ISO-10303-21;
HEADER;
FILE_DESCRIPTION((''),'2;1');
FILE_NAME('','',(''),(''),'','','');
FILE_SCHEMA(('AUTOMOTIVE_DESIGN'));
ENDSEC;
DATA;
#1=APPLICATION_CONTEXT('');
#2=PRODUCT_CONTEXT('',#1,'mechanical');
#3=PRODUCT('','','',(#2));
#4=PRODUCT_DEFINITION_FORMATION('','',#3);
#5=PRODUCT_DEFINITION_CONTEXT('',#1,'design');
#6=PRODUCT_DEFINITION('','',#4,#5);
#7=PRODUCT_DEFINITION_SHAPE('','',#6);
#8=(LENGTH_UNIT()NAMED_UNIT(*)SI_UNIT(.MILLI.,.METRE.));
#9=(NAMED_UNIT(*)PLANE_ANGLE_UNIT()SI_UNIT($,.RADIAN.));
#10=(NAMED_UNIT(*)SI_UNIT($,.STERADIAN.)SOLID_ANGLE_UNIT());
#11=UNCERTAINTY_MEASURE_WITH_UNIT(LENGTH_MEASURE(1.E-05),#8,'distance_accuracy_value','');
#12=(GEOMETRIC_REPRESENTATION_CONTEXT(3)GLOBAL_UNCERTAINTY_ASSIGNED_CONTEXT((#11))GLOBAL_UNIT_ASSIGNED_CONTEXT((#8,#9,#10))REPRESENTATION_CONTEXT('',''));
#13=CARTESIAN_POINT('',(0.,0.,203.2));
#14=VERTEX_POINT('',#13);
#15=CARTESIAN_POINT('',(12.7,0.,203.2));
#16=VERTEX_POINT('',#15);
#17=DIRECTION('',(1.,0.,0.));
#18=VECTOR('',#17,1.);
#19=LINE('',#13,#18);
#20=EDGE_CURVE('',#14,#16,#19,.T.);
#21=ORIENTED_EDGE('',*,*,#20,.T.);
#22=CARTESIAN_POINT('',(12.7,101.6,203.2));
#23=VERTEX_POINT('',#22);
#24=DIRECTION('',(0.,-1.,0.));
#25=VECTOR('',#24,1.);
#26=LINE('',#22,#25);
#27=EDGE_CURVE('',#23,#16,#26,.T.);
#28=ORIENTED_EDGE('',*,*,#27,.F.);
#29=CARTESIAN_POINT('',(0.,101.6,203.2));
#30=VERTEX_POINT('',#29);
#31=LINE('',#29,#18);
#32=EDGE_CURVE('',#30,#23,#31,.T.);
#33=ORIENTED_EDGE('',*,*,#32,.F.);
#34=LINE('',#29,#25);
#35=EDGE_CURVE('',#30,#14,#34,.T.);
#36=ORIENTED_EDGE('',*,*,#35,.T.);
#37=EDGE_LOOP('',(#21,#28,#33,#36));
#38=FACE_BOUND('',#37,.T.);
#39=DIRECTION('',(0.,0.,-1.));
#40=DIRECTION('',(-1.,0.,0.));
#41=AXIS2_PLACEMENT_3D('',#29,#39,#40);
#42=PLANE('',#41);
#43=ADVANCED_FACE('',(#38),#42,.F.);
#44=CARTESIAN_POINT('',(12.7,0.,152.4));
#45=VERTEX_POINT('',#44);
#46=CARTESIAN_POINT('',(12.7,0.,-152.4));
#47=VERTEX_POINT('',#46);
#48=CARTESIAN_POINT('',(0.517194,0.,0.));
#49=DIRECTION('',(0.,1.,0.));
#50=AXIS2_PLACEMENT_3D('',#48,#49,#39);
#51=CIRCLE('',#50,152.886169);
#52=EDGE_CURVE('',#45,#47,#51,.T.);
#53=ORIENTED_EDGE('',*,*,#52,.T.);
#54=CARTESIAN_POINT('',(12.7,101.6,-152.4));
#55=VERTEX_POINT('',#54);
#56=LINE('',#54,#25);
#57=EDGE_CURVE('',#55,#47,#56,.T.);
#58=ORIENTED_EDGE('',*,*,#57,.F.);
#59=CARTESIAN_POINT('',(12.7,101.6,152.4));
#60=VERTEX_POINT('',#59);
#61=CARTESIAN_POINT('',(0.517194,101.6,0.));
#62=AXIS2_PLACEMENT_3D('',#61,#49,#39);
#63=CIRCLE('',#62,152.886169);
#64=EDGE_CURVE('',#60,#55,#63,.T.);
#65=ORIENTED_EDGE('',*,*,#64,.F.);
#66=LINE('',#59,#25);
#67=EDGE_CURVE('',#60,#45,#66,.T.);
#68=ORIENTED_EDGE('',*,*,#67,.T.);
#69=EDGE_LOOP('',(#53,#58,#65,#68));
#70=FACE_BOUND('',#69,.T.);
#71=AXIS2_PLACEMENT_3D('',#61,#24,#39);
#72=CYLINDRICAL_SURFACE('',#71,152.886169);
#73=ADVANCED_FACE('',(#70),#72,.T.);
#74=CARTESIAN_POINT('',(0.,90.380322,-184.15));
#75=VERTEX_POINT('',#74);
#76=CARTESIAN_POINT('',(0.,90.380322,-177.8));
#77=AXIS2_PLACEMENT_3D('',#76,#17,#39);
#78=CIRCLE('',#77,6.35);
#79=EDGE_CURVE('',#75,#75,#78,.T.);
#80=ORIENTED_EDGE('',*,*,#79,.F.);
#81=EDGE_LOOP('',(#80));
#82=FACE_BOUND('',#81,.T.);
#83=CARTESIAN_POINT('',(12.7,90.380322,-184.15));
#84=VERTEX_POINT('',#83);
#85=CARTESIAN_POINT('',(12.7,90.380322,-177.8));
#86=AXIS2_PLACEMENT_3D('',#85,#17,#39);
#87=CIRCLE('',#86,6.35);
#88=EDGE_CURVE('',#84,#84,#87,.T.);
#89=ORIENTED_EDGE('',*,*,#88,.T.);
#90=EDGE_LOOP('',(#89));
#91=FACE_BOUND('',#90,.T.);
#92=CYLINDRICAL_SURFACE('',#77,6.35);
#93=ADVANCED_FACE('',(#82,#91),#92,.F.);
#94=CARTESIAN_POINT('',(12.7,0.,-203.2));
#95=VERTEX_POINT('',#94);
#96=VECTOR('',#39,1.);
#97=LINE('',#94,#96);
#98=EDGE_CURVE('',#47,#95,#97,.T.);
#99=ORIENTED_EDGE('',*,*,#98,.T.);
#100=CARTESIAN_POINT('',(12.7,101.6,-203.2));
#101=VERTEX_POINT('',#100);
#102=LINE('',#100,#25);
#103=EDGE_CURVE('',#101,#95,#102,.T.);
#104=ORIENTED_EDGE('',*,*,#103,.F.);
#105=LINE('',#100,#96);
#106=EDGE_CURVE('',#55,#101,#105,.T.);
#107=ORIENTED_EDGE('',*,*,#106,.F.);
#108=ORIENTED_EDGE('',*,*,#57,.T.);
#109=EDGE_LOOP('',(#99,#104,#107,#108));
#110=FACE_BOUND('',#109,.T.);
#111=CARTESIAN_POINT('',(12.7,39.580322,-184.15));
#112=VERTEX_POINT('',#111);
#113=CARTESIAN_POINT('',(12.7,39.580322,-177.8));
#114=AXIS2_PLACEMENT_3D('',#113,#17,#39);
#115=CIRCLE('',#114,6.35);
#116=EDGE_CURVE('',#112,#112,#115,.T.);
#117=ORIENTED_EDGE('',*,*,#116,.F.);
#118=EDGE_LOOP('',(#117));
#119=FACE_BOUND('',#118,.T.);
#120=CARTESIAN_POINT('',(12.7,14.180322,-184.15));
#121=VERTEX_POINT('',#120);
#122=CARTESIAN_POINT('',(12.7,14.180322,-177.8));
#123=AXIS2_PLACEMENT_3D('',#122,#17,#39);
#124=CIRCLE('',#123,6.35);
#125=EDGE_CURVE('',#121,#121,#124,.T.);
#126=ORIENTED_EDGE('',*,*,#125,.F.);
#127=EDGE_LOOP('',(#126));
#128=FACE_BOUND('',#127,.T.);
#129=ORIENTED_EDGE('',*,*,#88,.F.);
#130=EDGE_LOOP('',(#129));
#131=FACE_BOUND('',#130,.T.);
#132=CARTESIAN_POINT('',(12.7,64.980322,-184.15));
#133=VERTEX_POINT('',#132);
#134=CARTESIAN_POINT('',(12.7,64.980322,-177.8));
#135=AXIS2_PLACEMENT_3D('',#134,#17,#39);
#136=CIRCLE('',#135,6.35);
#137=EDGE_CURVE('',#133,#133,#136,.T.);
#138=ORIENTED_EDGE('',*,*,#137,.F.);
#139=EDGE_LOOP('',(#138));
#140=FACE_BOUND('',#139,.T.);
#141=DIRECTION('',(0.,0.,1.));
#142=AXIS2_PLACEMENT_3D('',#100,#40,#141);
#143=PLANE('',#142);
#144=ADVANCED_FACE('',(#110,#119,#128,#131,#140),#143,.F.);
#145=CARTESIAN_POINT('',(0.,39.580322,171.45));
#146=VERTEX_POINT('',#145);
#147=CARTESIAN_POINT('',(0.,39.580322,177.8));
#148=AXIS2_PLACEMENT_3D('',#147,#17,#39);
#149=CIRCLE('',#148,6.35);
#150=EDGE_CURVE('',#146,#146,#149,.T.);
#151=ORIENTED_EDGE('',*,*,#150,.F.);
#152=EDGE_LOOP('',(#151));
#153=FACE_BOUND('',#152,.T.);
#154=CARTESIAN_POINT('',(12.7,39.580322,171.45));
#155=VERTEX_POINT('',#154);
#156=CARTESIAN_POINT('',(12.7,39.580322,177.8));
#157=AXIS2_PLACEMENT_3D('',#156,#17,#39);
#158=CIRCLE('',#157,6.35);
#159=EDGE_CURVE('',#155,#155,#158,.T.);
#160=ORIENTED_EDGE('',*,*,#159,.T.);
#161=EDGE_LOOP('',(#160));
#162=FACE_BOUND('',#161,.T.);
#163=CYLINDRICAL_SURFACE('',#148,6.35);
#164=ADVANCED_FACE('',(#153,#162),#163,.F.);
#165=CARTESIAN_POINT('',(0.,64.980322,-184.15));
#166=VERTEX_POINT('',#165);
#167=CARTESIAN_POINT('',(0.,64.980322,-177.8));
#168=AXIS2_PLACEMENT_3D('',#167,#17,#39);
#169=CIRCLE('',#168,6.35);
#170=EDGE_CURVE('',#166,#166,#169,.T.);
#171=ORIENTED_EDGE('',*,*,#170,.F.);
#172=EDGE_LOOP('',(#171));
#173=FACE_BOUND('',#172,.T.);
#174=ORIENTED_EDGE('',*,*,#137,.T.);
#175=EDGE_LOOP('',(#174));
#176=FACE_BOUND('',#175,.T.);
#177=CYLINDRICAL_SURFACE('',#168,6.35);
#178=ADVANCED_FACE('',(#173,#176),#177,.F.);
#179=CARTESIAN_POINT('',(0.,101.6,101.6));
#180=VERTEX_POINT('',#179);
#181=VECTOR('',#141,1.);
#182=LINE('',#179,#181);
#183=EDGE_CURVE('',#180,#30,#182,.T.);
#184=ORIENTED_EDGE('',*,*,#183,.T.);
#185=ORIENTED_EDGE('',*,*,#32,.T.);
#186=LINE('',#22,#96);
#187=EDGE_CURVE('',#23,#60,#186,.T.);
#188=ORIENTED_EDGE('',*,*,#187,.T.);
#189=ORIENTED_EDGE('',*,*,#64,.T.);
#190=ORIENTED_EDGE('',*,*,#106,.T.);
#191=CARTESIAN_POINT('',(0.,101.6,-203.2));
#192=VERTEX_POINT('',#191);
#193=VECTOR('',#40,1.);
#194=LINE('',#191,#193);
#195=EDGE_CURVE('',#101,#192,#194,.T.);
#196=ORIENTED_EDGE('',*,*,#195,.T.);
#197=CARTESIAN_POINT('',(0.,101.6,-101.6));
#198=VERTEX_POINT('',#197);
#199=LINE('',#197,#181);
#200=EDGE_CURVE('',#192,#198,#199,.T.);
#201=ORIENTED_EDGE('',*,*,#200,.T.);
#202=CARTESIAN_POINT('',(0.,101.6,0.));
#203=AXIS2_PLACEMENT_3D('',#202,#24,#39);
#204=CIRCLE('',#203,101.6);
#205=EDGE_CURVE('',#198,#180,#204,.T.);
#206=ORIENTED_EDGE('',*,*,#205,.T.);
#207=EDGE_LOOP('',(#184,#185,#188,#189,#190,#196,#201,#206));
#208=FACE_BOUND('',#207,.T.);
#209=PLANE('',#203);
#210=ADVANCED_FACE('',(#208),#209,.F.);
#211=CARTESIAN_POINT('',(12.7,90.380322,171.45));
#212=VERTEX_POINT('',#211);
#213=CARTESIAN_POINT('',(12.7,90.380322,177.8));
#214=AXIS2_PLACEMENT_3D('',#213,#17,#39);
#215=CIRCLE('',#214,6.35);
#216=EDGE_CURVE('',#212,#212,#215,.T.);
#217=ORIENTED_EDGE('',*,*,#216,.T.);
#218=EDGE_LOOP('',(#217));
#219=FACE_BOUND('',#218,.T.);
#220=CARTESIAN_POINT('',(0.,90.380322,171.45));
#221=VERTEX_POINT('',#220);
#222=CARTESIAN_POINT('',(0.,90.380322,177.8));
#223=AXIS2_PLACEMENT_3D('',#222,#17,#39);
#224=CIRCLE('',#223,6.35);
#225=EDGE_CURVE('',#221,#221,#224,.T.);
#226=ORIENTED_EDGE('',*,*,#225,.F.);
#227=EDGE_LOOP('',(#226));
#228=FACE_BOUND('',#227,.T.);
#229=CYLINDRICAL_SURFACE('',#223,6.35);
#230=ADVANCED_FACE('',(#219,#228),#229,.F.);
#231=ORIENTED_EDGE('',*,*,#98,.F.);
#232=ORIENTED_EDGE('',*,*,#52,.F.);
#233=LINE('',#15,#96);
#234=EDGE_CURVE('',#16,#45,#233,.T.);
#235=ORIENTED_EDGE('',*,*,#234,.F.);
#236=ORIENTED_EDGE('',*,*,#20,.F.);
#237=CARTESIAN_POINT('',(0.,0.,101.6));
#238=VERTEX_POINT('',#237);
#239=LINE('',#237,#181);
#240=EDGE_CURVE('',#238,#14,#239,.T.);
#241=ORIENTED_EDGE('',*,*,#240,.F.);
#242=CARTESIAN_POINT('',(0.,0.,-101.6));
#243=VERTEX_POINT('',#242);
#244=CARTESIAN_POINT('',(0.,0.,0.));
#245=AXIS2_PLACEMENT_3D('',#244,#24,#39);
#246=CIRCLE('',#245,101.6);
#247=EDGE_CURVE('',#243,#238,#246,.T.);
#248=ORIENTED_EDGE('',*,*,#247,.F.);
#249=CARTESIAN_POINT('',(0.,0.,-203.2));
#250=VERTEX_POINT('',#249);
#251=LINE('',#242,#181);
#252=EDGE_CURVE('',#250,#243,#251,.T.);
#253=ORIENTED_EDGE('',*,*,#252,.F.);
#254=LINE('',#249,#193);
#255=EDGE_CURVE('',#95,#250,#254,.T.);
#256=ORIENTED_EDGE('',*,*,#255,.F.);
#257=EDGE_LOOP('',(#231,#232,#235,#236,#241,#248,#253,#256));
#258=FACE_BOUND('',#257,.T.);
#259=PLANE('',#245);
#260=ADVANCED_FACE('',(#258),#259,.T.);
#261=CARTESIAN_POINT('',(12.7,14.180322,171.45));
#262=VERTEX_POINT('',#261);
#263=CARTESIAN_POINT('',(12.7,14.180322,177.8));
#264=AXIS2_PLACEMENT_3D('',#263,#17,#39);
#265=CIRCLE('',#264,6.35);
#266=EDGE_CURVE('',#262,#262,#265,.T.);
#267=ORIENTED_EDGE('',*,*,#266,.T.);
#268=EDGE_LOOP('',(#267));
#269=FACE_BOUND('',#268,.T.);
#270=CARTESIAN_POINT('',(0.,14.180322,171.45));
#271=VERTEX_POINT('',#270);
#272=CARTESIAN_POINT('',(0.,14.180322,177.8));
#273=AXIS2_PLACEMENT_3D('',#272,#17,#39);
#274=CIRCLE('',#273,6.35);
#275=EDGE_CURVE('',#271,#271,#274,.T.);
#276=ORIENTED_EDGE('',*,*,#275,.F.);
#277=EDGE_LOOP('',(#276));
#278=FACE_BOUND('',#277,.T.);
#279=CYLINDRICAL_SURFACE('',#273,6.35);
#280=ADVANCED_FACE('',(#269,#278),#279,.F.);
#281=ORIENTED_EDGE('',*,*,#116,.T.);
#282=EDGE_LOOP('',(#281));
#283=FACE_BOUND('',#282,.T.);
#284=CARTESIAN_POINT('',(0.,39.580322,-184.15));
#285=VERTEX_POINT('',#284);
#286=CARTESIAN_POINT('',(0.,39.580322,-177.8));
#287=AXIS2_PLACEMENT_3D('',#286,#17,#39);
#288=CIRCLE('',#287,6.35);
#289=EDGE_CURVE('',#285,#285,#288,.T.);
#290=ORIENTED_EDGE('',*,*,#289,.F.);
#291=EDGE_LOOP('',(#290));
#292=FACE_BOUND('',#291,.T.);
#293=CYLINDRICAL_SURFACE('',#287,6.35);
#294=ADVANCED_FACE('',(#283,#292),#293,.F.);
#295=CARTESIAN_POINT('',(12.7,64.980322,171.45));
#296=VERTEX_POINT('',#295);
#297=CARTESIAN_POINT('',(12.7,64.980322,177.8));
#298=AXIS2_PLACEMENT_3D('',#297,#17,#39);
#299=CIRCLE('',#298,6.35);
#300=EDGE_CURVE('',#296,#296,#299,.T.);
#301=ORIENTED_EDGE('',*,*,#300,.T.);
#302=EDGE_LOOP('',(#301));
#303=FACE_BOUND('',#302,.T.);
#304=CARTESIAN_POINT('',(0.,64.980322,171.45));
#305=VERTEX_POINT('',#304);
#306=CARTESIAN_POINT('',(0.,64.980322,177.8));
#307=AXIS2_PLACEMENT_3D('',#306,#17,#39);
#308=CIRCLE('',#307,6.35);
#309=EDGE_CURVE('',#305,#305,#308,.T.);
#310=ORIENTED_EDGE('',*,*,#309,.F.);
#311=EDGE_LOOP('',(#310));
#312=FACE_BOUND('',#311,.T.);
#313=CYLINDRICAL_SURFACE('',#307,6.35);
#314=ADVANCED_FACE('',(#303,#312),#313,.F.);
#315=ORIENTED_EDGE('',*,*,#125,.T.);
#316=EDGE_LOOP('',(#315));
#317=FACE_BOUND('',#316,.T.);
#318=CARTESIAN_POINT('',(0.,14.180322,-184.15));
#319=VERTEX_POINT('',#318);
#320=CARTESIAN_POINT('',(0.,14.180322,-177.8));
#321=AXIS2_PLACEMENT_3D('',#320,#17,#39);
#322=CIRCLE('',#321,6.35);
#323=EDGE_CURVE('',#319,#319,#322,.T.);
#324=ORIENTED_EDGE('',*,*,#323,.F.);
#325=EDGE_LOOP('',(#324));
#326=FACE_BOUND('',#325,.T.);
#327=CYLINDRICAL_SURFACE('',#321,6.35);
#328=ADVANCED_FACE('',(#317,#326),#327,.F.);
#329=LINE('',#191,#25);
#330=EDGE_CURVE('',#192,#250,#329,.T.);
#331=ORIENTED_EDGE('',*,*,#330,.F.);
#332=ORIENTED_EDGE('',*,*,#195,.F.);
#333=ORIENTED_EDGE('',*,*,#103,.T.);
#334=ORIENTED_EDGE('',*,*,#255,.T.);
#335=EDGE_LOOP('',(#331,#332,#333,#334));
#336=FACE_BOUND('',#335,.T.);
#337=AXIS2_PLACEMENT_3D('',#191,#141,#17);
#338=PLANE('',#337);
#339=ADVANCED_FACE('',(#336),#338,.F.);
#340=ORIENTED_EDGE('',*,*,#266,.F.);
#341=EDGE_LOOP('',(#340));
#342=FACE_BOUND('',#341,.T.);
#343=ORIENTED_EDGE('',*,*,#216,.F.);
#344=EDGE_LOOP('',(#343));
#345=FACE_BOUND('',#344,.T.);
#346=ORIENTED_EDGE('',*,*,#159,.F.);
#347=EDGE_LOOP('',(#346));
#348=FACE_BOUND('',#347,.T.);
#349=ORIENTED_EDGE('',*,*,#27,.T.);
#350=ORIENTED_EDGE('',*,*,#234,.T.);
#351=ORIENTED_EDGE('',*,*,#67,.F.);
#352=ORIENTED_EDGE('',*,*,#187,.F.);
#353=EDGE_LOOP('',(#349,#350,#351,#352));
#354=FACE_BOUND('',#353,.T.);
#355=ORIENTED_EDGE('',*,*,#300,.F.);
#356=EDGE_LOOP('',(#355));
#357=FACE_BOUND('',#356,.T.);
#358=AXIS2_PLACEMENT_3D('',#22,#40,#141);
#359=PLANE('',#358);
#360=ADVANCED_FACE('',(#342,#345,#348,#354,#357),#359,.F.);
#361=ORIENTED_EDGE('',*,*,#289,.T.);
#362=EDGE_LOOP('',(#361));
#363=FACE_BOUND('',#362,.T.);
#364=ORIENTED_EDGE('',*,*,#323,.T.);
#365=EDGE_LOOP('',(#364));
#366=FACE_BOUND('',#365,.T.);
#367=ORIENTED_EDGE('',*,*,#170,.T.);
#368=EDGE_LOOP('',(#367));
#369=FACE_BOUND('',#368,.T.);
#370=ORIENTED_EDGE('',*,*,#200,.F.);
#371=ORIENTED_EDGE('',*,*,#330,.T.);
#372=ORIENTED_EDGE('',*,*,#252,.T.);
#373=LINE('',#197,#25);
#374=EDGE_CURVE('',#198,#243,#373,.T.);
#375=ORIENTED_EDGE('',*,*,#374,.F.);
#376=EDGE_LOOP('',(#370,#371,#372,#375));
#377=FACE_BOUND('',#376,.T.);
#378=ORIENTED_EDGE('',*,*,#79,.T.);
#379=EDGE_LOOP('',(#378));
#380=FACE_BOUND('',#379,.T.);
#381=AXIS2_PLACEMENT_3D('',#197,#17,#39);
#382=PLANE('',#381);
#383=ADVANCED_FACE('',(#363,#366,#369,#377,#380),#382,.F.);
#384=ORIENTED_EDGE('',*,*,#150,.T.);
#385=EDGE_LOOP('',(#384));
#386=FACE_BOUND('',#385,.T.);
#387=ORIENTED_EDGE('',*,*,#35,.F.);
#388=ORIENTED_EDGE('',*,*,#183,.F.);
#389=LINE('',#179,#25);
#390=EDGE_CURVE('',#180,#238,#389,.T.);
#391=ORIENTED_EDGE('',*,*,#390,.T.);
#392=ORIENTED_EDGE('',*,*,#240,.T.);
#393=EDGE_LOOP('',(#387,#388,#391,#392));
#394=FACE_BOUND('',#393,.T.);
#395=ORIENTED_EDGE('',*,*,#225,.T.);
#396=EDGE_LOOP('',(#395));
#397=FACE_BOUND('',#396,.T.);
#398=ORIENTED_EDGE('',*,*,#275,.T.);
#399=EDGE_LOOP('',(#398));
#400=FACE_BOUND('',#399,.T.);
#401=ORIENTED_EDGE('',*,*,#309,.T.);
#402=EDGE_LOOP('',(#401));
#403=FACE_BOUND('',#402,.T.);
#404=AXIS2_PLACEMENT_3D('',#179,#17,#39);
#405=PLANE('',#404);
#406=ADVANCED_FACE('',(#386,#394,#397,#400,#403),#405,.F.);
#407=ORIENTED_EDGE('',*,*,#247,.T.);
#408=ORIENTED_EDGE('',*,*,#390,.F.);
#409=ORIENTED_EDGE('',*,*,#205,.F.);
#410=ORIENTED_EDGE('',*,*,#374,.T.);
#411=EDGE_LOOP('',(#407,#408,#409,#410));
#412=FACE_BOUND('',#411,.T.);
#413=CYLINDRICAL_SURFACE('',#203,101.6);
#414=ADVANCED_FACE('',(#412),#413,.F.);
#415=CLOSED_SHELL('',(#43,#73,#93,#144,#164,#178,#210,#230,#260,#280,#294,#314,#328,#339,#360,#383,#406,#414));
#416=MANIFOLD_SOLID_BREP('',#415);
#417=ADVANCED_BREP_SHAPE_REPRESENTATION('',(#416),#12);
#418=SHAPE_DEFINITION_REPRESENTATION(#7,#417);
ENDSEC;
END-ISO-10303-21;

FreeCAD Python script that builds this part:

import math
import FreeCAD as App
import Part
import Sketcher

V = App.Vector
Q = App.Units.Quantity

doc = App.newDocument("Part")
body = doc.addObject("PartDesign::Body", "Body")

sketch1 = body.newObject("Sketcher::SketchObject", "Sketch")
sketch1.AttachmentSupport = (doc.getObject("XZ_Plane"), [""])
sketch1.MapMode = "FlatFace"
sketch1.addGeometry(Part.LineSegment(V(0, 102, 0), V(0, 203, 0)), False)
sketch1.addGeometry(Part.LineSegment(V(0, 203, 0), V(13, 203, 0)), False)
sketch1.addGeometry(Part.LineSegment(V(13, 203, 0), V(13, 152, 0)), False)
sketch1.addGeometry(Part.ArcOfCircle(Part.Circle(V(1, 0, 0), V(0, 0, 1), 153), math.radians(-85), math.radians(85)), False)
sketch1.addGeometry(Part.LineSegment(V(13, -152, 0), V(13, -203, 0)), False)
sketch1.addGeometry(Part.LineSegment(V(13, -203, 0), V(0, -203, 0)), False)
sketch1.addGeometry(Part.LineSegment(V(0, -203, 0), V(0, -102, 0)), False)
sketch1.addGeometry(Part.ArcOfCircle(Part.Circle(V(0, 0, 0), V(0, 0, 1), 102), math.radians(-90), math.radians(90)), False)
sketch1.addConstraint(Sketcher.Constraint("Coincident", 0, 2, 1, 1))
sketch1.addConstraint(Sketcher.Constraint("Coincident", 1, 2, 2, 1))
sketch1.addConstraint(Sketcher.Constraint("Coincident", 2, 2, 3, 2))
sketch1.addConstraint(Sketcher.Constraint("Coincident", 3, 1, 4, 1))
sketch1.addConstraint(Sketcher.Constraint("Coincident", 4, 2, 5, 1))
sketch1.addConstraint(Sketcher.Constraint("Coincident", 5, 2, 6, 1))
sketch1.addConstraint(Sketcher.Constraint("Coincident", 6, 2, 7, 1))
sketch1.addConstraint(Sketcher.Constraint("Coincident", 7, 2, 0, 1))
sketch1.addConstraint(Sketcher.Constraint("Vertical", 0))
sketch1.addConstraint(Sketcher.Constraint("Horizontal", 1))
sketch1.addConstraint(Sketcher.Constraint("Vertical", 2))
sketch1.addConstraint(Sketcher.Constraint("Vertical", 4))
sketch1.addConstraint(Sketcher.Constraint("Horizontal", 5))
sketch1.addConstraint(Sketcher.Constraint("Vertical", 6))
sketch1.addConstraint(Sketcher.Constraint("Coincident", 7, 3, -1, 1))
sketch1.addConstraint(Sketcher.Constraint("Symmetric", 0, 2, 5, 2, -1, 1))
sketch1.addConstraint(Sketcher.Constraint("Symmetric", 2, 2, 3, 1, -1))
sketch1.addConstraint(Sketcher.Constraint("PointOnObject", 0, 2, -2))
sketch1.addConstraint(Sketcher.Constraint("Radius", 7, Q("4 in")))
sketch1.addConstraint(Sketcher.Constraint("DistanceY", 0, 1, 0, 2, Q("4 in")))
sketch1.addConstraint(Sketcher.Constraint("DistanceY", 2, 2, 2, 1, Q("2 in")))
sketch1.addConstraint(Sketcher.Constraint("DistanceX", 1, 1, 1, 2, Q("0.5 in")))
sketch1.addConstraint(Sketcher.Constraint("Radius", 3, Q("152.886169 mm")))
pad1 = body.newObject("PartDesign::Pad", "Pad")
pad1.Profile = sketch1
pad1.Length = Q("4 in")
pad1.Reversed = True

sketch2 = body.newObject("Sketcher::SketchObject", "Sketch001")
sketch2.AttachmentSupport = (doc.getObject("YZ_Plane"), [""])
sketch2.MapMode = "FlatFace"
sketch2.AttachmentOffset = App.Placement(V(0, 0, 0.5 * 25.4), App.Rotation())
sketch2.addGeometry(Part.Circle(V(90, 178, 0), V(0, 0, 1), 6), False)
sketch2.addGeometry(Part.Circle(V(65, 178, 0), V(0, 0, 1), 6), False)
sketch2.addGeometry(Part.Circle(V(40, 178, 0), V(0, 0, 1), 6), False)
sketch2.addGeometry(Part.Circle(V(14, 178, 0), V(0, 0, 1), 6), False)
sketch2.addConstraint(Sketcher.Constraint("Equal", 0, 1))
sketch2.addConstraint(Sketcher.Constraint("Equal", 1, 2))
sketch2.addConstraint(Sketcher.Constraint("Equal", 2, 3))
sketch2.addConstraint(Sketcher.Constraint("Horizontal", 0, 3, 1, 3))
sketch2.addConstraint(Sketcher.Constraint("Horizontal", 1, 3, 2, 3))
sketch2.addConstraint(Sketcher.Constraint("Horizontal", 2, 3, 3, 3))
sketch2.addConstraint(Sketcher.Constraint("Diameter", 0, Q("0.5 in")))
sketch2.addConstraint(Sketcher.Constraint("DistanceY", -1, 1, 0, 3, Q("7 in")))
sketch2.addConstraint(Sketcher.Constraint("DistanceX", 1, 3, 0, 3, Q("1 in")))
sketch2.addConstraint(Sketcher.Constraint("DistanceX", 2, 3, 1, 3, Q("1 in")))
sketch2.addConstraint(Sketcher.Constraint("DistanceX", 3, 3, 2, 3, Q("1 in")))
sketch2.addConstraint(Sketcher.Constraint("DistanceX", -1, 1, 0, 3, Q("90.380322 mm")))
pocket1 = body.newObject("PartDesign::Pocket", "Pocket")
pocket1.Profile = sketch2
pocket1.Type = "ThroughAll"

sketch3 = body.newObject("Sketcher::SketchObject", "Sketch002")
sketch3.AttachmentSupport = (doc.getObject("YZ_Plane"), [""])
sketch3.MapMode = "FlatFace"
sketch3.AttachmentOffset = App.Placement(V(0, 0, 0.5 * 25.4), App.Rotation())
sketch3.addGeometry(Part.Circle(V(90, -178, 0), V(0, 0, 1), 6), False)
sketch3.addGeometry(Part.Circle(V(65, -178, 0), V(0, 0, 1), 6), False)
sketch3.addGeometry(Part.Circle(V(40, -178, 0), V(0, 0, 1), 6), False)
sketch3.addGeometry(Part.Circle(V(14, -178, 0), V(0, 0, 1), 6), False)
sketch3.addConstraint(Sketcher.Constraint("Equal", 0, 1))
sketch3.addConstraint(Sketcher.Constraint("Equal", 1, 2))
sketch3.addConstraint(Sketcher.Constraint("Equal", 2, 3))
sketch3.addConstraint(Sketcher.Constraint("Horizontal", 0, 3, 1, 3))
sketch3.addConstraint(Sketcher.Constraint("Horizontal", 1, 3, 2, 3))
sketch3.addConstraint(Sketcher.Constraint("Horizontal", 2, 3, 3, 3))
sketch3.addConstraint(Sketcher.Constraint("Diameter", 0, Q("0.5 in")))
sketch3.addConstraint(Sketcher.Constraint("DistanceY", 0, 3, -1, 1, Q("7 in")))
sketch3.addConstraint(Sketcher.Constraint("DistanceX", 1, 3, 0, 3, Q("1 in")))
sketch3.addConstraint(Sketcher.Constraint("DistanceX", 2, 3, 1, 3, Q("1 in")))
sketch3.addConstraint(Sketcher.Constraint("DistanceX", 3, 3, 2, 3, Q("1 in")))
sketch3.addConstraint(Sketcher.Constraint("DistanceX", -1, 1, 0, 3, Q("90.380322 mm")))
pocket2 = body.newObject("PartDesign::Pocket", "Pocket001")
pocket2.Profile = sketch3
pocket2.Type = "ThroughAll"

doc.recompute()
